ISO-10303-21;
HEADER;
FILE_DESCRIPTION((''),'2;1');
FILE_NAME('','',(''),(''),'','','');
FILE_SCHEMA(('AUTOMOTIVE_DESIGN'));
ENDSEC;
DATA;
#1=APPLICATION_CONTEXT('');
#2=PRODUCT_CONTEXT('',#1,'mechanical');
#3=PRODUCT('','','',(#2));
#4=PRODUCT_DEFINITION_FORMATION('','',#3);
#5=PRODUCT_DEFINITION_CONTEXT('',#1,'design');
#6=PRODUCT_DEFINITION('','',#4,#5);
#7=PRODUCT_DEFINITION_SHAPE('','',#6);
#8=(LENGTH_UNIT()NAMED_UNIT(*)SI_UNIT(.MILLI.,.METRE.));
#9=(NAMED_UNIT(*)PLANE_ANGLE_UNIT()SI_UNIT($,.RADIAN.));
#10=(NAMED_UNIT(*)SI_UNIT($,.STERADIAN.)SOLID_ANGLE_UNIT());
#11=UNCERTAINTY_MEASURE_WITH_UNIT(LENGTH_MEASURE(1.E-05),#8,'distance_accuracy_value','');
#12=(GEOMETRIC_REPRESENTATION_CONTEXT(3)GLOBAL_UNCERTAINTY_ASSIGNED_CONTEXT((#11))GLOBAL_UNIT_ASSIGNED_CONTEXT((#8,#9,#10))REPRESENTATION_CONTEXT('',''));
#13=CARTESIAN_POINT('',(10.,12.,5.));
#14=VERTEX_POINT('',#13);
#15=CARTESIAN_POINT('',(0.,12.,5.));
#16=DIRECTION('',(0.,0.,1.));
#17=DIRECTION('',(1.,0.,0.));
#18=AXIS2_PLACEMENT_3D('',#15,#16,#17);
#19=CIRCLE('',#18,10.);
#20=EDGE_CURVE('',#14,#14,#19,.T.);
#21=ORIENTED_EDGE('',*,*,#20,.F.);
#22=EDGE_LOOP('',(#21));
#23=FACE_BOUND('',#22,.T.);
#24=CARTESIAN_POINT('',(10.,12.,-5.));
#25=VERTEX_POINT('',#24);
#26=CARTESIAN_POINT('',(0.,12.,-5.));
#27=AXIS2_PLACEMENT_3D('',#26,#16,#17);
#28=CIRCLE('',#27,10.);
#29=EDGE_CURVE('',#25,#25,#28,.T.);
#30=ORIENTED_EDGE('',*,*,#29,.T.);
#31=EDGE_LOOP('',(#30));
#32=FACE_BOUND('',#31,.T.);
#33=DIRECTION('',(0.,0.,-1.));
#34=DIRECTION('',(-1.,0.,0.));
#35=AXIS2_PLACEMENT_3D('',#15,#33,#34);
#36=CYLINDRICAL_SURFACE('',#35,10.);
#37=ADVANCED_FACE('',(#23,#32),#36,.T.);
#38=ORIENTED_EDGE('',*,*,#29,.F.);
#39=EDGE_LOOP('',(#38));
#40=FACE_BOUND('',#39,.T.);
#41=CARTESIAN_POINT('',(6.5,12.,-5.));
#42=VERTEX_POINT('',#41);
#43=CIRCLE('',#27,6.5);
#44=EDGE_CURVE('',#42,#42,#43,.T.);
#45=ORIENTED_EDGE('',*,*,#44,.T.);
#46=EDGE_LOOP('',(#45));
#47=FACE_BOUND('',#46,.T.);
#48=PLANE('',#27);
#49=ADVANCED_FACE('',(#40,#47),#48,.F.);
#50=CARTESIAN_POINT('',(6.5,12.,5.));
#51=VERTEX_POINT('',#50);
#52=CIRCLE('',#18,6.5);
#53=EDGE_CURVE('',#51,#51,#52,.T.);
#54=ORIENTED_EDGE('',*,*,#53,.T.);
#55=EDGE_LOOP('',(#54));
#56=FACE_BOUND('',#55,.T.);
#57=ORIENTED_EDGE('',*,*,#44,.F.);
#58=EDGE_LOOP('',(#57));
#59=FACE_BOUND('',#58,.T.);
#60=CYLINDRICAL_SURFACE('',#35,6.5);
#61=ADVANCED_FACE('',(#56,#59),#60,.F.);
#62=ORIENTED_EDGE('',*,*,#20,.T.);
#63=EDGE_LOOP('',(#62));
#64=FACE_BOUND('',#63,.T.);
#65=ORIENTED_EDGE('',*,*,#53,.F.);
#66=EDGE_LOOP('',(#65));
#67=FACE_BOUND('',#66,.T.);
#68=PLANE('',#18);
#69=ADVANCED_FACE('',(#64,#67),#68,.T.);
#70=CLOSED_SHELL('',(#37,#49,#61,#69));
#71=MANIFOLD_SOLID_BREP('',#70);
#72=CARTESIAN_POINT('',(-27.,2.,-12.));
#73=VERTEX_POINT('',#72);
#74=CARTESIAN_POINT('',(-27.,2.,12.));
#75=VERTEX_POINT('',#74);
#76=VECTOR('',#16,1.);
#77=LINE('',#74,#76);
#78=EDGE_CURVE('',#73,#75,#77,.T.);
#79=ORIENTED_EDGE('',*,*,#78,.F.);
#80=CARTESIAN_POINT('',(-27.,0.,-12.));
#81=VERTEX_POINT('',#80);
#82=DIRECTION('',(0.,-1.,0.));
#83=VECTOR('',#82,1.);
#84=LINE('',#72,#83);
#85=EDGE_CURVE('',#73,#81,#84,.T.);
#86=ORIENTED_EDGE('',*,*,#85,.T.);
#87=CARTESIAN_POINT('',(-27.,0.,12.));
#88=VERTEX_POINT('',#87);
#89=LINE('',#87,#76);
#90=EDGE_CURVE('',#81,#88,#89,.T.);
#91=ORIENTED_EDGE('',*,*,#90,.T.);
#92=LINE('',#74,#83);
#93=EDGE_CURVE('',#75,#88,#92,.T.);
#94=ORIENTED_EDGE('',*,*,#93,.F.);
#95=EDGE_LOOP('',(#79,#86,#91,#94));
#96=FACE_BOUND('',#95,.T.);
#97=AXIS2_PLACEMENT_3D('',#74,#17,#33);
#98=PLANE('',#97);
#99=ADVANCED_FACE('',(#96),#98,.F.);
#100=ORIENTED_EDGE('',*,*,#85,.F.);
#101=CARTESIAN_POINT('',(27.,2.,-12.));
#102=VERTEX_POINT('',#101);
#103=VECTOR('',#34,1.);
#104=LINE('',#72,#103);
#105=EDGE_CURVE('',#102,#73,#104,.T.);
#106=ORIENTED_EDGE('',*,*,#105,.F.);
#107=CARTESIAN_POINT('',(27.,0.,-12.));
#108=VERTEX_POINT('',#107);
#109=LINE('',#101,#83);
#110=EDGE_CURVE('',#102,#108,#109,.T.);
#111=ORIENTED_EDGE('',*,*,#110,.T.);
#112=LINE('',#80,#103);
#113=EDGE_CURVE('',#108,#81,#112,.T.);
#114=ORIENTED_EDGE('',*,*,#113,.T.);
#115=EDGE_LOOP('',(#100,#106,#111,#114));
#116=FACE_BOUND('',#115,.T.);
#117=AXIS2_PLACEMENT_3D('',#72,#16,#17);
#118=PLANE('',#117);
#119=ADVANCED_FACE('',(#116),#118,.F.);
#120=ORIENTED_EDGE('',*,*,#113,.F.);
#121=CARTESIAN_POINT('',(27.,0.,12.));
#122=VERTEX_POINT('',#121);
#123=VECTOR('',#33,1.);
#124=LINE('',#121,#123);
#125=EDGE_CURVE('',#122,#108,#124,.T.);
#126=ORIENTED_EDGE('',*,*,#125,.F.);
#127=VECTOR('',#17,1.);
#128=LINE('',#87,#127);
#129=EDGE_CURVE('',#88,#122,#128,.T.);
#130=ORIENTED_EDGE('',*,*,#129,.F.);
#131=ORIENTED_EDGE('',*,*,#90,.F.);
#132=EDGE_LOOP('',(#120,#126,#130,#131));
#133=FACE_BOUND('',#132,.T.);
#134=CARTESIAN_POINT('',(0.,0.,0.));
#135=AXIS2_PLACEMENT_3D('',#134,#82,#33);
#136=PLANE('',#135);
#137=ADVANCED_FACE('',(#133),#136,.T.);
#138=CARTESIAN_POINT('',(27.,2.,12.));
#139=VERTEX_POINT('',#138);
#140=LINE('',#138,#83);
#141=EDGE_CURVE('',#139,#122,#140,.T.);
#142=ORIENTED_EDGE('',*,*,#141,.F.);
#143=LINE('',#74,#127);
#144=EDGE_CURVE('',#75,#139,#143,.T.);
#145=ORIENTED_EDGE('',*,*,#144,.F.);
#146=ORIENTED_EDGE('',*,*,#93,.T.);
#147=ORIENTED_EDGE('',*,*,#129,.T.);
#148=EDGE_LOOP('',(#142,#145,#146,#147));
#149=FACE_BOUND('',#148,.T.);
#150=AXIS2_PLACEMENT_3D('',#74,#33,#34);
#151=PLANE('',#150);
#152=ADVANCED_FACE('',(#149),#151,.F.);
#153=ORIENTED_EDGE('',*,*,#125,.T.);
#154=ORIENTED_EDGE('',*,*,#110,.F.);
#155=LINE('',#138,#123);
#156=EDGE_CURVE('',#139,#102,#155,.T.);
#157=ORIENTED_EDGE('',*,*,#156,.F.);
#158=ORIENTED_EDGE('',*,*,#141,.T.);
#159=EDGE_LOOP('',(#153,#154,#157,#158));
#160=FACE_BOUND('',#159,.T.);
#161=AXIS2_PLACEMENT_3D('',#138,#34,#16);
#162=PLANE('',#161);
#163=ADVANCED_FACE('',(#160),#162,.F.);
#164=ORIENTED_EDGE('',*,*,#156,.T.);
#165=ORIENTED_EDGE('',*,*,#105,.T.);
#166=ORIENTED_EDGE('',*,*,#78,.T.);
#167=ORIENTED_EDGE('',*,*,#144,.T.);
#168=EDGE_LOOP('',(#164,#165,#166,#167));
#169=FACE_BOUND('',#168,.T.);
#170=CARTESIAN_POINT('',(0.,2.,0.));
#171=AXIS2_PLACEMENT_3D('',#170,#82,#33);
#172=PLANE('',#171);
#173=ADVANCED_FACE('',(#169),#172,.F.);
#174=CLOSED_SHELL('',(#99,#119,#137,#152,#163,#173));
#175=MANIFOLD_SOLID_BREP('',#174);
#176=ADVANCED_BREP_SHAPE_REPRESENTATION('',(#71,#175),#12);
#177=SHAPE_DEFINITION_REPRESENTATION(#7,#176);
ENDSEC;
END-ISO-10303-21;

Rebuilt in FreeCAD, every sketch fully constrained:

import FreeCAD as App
import Part
import Sketcher

doc = App.newDocument("Part")
body = doc.addObject("PartDesign::Body", "Body")

sketch1 = body.newObject("Sketcher::SketchObject", "Sketch")
sketch1.AttachmentSupport = (doc.getObject("XZ_Plane"), [""])
sketch1.MapMode = "FlatFace"
sketch1.addGeometry([
    Part.LineSegment(App.Vector(-27, -12, 0), App.Vector(-27, 12, 0)),
    Part.LineSegment(App.Vector(-27, 12, 0), App.Vector(27, 12, 0)),
    Part.LineSegment(App.Vector(27, 12, 0), App.Vector(27, -12, 0)),
    Part.LineSegment(App.Vector(27, -12, 0), App.Vector(-27, -12, 0)),
], False)
sketch1.addConstraint([
    Sketcher.Constraint("Coincident", 0, 2, 1, 1),
    Sketcher.Constraint("Coincident", 1, 2, 2, 1),
    Sketcher.Constraint("Coincident", 2, 2, 3, 1),
    Sketcher.Constraint("Coincident", 3, 2, 0, 1),
    Sketcher.Constraint("Vertical", 0),
    Sketcher.Constraint("Horizontal", 1),
    Sketcher.Constraint("Vertical", 2),
    Sketcher.Constraint("Horizontal", 3),
    Sketcher.Constraint("Symmetric", 0, 2, 2, 2, -1, 1),
    Sketcher.Constraint("DistanceX", 1, 1, 1, 2, 54.0),
    Sketcher.Constraint("DistanceY", 0, 1, 0, 2, 24.0),
])
pad1 = body.newObject("PartDesign::Pad", "Pad")
pad1.Profile = sketch1
pad1.Length = 2
pad1.Reversed = True
body2 = doc.addObject("PartDesign::Body", "Body001")

sketch2 = body2.newObject("Sketcher::SketchObject", "Sketch001")
sketch2.AttachmentSupport = (doc.getObject("XY_Plane001"), [""])
sketch2.MapMode = "FlatFace"
sketch2.addGeometry([
    Part.Circle(App.Vector(0, 12, 0), App.Vector(0, 0, 1), 10),
    Part.Circle(App.Vector(0, 12, 0), App.Vector(0, 0, 1), 6),
], False)
sketch2.addConstraint([
    Sketcher.Constraint("Coincident", 1, 3, 0, 3),
    Sketcher.Constraint("PointOnObject", 0, 3, -2),
    Sketcher.Constraint("Diameter", 0, 20.0),
    Sketcher.Constraint("Diameter", 1, 13.0),
    Sketcher.Constraint("DistanceY", -1, 1, 0, 3, 12.0),
])
pad2 = body2.newObject("PartDesign::Pad", "Pad001")
pad2.Profile = sketch2
pad2.Length = 10
pad2.Midplane = True

doc.recompute()
